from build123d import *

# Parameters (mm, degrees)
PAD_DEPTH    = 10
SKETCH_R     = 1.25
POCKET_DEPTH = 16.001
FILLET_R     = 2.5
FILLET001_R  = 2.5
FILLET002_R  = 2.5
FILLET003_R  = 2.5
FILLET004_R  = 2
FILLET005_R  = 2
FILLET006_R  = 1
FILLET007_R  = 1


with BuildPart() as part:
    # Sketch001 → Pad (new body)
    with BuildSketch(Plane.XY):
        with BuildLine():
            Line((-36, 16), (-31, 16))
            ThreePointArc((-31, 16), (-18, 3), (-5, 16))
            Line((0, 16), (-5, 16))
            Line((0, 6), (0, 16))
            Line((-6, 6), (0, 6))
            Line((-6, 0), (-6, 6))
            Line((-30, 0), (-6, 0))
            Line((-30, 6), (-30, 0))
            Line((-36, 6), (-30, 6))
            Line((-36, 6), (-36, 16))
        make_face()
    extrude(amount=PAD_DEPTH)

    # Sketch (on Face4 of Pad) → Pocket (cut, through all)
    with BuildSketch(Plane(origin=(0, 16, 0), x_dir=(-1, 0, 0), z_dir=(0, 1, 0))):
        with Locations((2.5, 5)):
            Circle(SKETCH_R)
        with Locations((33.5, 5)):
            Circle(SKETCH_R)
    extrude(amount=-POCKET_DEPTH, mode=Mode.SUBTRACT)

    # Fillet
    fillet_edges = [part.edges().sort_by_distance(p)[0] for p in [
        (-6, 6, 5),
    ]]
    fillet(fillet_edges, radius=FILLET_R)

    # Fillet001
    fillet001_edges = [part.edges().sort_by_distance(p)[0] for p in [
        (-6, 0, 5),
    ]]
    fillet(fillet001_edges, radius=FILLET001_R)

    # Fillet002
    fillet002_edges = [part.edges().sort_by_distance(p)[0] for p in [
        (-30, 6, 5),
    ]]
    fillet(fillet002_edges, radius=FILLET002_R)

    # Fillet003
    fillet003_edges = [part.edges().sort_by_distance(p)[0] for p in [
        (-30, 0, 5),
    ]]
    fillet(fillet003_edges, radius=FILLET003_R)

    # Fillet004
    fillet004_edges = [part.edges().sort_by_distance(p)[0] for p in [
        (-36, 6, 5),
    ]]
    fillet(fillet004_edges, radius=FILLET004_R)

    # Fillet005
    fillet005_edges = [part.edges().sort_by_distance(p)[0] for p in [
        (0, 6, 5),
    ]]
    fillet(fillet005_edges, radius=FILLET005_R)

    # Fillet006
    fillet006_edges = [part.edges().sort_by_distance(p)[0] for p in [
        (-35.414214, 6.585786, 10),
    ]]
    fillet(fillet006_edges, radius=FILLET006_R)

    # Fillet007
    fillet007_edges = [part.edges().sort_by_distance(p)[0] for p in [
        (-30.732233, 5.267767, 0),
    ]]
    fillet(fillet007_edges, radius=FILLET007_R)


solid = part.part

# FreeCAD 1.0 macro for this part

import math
import FreeCAD as App
import Part
import Sketcher

V = App.Vector


def edges_at(feature, points):
    """Names of the edges that pass closest to the given points."""
    edges = feature.Shape.Edges
    near = lambda p: min(range(len(edges)), key=lambda i: edges[i].distToShape(Part.Vertex(*p))[0])
    return sorted({f"Edge{near(p) + 1}" for p in points})

doc = App.newDocument("Part")
body = doc.addObject("PartDesign::Body", "Body")

sketch1 = body.newObject("Sketcher::SketchObject", "Sketch")
sketch1.AttachmentSupport = (doc.getObject("XY_Plane"), [""])
sketch1.MapMode = "FlatFace"
sketch1.addGeometry(Part.LineSegment(V(-31, 16, 0), V(-36, 16, 0)), False)
sketch1.addGeometry(Part.LineSegment(V(-36, 16, 0), V(-36, 6, 0)), False)
sketch1.addGeometry(Part.LineSegment(V(-36, 6, 0), V(-30, 6, 0)), False)
sketch1.addGeometry(Part.LineSegment(V(-30, 6, 0), V(-30, 0, 0)), False)
sketch1.addGeometry(Part.LineSegment(V(-30, 0, 0), V(-6, 0, 0)), False)
sketch1.addGeometry(Part.LineSegment(V(-6, 0, 0), V(-6, 6, 0)), False)
sketch1.addGeometry(Part.LineSegment(V(-6, 6, 0), V(0, 6, 0)), False)
sketch1.addGeometry(Part.LineSegment(V(0, 6, 0), V(0, 16, 0)), False)
sketch1.addGeometry(Part.LineSegment(V(0, 16, 0), V(-5, 16, 0)), False)
sketch1.addGeometry(Part.ArcOfCircle(Part.Circle(V(-18, 16, 0), V(0, 0, 1), 13), math.radians(180), math.radians(360)), False)
sketch1.addConstraint(Sketcher.Constraint("Coincident", 0, 2, 1, 1))
sketch1.addConstraint(Sketcher.Constraint("Coincident", 1, 2, 2, 1))
sketch1.addConstraint(Sketcher.Constraint("Coincident", 2, 2, 3, 1))
sketch1.addConstraint(Sketcher.Constraint("Coincident", 3, 2, 4, 1))
sketch1.addConstraint(Sketcher.Constraint("Coincident", 4, 2, 5, 1))
sketch1.addConstraint(Sketcher.Constraint("Coincident", 5, 2, 6, 1))
sketch1.addConstraint(Sketcher.Constraint("Coincident", 6, 2, 7, 1))
sketch1.addConstraint(Sketcher.Constraint("Coincident", 7, 2, 8, 1))
sketch1.addConstraint(Sketcher.Constraint("Coincident", 8, 2, 9, 2))
sketch1.addConstraint(Sketcher.Constraint("Coincident", 9, 1, 0, 1))
sketch1.addConstraint(Sketcher.Constraint("Horizontal", 0))
sketch1.addConstraint(Sketcher.Constraint("Vertical", 1))
sketch1.addConstraint(Sketcher.Constraint("Horizontal", 2))
sketch1.addConstraint(Sketcher.Constraint("Vertical", 3))
sketch1.addConstraint(Sketcher.Constraint("Horizontal", 4))
sketch1.addConstraint(Sketcher.Constraint("Vertical", 5))
sketch1.addConstraint(Sketcher.Constraint("Horizontal", 6))
sketch1.addConstraint(Sketcher.Constraint("Vertical", 7))
sketch1.addConstraint(Sketcher.Constraint("Horizontal", 8))
sketch1.addConstraint(Sketcher.Constraint("PointOnObject", 3, 2, -1))
sketch1.addConstraint(Sketcher.Constraint("PointOnObject", 6, 2, -2))
sketch1.addConstraint(Sketcher.Constraint("Horizontal", 9, 3, 0, 2))
sketch1.addConstraint(Sketcher.Constraint("Horizontal", 2, 2, 5, 2))
sketch1.addConstraint(Sketcher.Constraint("Horizontal", 0, 2, 7, 2))
sketch1.addConstraint(Sketcher.Constraint("Equal", 2, 6))
sketch1.addConstraint(Sketcher.Constraint("Equal", 0, 8))
sketch1.addConstraint(Sketcher.Constraint("Equal", 6, 3))
sketch1.addConstraint(Sketcher.Constraint("Radius", 9, 13.0))
sketch1.addConstraint(Sketcher.Constraint("DistanceX", 0, 2, 0, 1, 5.0))
sketch1.addConstraint(Sketcher.Constraint("DistanceX", 2, 1, 2, 2, 6.0))
sketch1.addConstraint(Sketcher.Constraint("DistanceY", 1, 2, 1, 1, 10.0))
pad1 = body.newObject("PartDesign::Pad", "Pad")
pad1.Profile = sketch1
pad1.Length = 10

sketch2 = body.newObject("Sketcher::SketchObject", "Sketch001")
sketch2.AttachmentSupport = (doc.getObject("XZ_Plane"), [""])
sketch2.MapMode = "FlatFace"
sketch2.AttachmentOffset = App.Placement(V(0, 0, -16), App.Rotation())
sketch2.addGeometry(Part.Circle(V(-2.5, 5, 0), V(0, 0, 1), 1.2), False)
sketch2.addGeometry(Part.Circle(V(-33.5, 5, 0), V(0, 0, 1), 1.2), False)
sketch2.addConstraint(Sketcher.Constraint("Equal", 0, 1))
sketch2.addConstraint(Sketcher.Constraint("Horizontal", 0, 3, 1, 3))
sketch2.addConstraint(Sketcher.Constraint("Diameter", 0, 2.5))
sketch2.addConstraint(Sketcher.Constraint("DistanceY", -1, 1, 0, 3, 5.0))
sketch2.addConstraint(Sketcher.Constraint("DistanceX", 1, 3, 0, 3, 31.0))
sketch2.addConstraint(Sketcher.Constraint("DistanceX", 0, 3, -1, 1, 2.5))
pocket1 = body.newObject("PartDesign::Pocket", "Pocket")
pocket1.Profile = sketch2
pocket1.Type = "ThroughAll"
pocket1.Reversed = True
doc.recompute()

fillet = body.newObject("PartDesign::Fillet", "Fillet")
fillet.Base = (pocket1, edges_at(pocket1, [(-6, 6, 5)]))
fillet.Radius = 2.5
doc.recompute()

fillet2 = body.newObject("PartDesign::Fillet", "Fillet001")
fillet2.Base = (fillet, edges_at(fillet, [(-6, 0, 5)]))
fillet2.Radius = 2.5
doc.recompute()

fillet3 = body.newObject("PartDesign::Fillet", "Fillet002")
fillet3.Base = (fillet2, edges_at(fillet2, [(-30, 6, 5)]))
fillet3.Radius = 2.5
doc.recompute()

fillet4 = body.newObject("PartDesign::Fillet", "Fillet003")
fillet4.Base = (fillet3, edges_at(fillet3, [(-30, 0, 5)]))
fillet4.Radius = 2.5
doc.recompute()

fillet5 = body.newObject("PartDesign::Fillet", "Fillet004")
fillet5.Base = (fillet4, edges_at(fillet4, [(-36, 6, 5)]))
fillet5.Radius = 2
doc.recompute()

fillet6 = body.newObject("PartDesign::Fillet", "Fillet005")
fillet6.Base = (fillet5, edges_at(fillet5, [(0, 6, 5)]))
fillet6.Radius = 2
doc.recompute()

fillet7 = body.newObject("PartDesign::Fillet", "Fillet006")
fillet7.Base = (fillet6, edges_at(fillet6, [(-35.414, 6.586, 10)]))
fillet7.Radius = 1
doc.recompute()

fillet8 = body.newObject("PartDesign::Fillet", "Fillet007")
fillet8.Base = (fillet7, edges_at(fillet7, [(-30.732, 5.268, 0)]))
fillet8.Radius = 1

doc.recompute()
